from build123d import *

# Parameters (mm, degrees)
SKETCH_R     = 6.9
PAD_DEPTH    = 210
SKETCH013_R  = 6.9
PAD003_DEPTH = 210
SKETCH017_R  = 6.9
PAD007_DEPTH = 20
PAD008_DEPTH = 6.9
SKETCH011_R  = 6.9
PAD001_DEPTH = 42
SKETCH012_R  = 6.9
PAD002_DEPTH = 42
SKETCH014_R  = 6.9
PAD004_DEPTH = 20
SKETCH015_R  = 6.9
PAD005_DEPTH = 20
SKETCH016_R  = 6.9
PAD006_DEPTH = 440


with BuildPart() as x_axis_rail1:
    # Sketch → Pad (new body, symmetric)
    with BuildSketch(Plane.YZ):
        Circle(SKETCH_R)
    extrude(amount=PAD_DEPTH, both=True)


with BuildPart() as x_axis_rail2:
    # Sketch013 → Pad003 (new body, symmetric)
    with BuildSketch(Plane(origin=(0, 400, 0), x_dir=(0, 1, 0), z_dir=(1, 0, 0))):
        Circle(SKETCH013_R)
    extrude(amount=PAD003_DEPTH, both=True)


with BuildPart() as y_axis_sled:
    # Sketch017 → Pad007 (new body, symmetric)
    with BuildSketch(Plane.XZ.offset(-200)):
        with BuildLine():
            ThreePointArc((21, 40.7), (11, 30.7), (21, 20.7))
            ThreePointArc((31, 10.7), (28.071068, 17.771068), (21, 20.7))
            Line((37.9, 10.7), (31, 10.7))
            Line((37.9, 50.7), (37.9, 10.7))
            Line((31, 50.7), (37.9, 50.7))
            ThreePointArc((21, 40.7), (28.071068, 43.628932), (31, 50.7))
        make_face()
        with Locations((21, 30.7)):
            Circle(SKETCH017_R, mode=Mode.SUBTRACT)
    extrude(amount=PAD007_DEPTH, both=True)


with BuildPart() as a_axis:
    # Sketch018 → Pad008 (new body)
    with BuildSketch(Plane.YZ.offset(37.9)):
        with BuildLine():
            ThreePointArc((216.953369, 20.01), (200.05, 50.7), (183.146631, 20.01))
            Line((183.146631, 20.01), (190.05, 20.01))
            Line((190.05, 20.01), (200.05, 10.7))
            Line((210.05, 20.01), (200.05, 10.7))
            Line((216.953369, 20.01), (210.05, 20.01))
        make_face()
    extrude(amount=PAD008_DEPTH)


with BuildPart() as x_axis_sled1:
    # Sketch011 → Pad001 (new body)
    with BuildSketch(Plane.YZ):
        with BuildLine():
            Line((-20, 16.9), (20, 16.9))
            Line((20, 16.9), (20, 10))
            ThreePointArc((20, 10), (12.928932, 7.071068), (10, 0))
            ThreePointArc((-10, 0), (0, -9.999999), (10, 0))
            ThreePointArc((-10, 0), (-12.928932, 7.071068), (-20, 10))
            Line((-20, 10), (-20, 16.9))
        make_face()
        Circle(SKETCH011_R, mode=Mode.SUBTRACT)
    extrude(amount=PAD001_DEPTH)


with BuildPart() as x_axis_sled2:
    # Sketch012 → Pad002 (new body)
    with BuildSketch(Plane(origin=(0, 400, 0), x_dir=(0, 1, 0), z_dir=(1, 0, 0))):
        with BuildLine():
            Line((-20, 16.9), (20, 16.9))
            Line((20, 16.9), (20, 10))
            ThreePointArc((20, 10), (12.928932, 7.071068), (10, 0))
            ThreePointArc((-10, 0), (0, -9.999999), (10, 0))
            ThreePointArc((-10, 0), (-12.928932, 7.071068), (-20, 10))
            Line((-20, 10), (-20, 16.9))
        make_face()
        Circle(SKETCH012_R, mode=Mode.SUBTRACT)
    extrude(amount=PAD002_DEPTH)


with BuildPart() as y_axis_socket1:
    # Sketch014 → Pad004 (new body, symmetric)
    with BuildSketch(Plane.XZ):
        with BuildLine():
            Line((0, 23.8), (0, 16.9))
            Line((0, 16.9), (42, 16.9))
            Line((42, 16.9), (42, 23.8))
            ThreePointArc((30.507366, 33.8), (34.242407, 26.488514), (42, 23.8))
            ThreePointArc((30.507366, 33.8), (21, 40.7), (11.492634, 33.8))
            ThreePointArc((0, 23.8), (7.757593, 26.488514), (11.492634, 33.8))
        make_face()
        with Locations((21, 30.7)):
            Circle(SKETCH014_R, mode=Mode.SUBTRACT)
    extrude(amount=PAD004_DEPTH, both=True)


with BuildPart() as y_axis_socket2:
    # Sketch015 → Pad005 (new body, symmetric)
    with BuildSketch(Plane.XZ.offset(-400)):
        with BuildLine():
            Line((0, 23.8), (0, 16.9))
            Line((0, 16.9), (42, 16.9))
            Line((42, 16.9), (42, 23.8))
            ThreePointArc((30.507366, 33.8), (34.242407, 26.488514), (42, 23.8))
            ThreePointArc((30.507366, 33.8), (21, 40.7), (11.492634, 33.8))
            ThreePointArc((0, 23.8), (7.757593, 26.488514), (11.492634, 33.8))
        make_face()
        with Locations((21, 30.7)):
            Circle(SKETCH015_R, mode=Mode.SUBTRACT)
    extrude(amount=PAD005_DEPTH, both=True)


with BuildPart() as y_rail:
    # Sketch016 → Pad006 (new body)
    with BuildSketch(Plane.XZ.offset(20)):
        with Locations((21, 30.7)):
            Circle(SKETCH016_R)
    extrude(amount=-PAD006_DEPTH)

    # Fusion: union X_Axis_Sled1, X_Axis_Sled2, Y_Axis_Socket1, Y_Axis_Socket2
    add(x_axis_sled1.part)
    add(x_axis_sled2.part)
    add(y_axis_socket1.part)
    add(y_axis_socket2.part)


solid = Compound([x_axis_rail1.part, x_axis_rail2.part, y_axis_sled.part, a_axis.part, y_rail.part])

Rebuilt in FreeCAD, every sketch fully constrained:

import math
import FreeCAD as App
import Part
import Sketcher

doc = App.newDocument("Part")
body = doc.addObject("PartDesign::Body", "Body")

# Sketch on YZ plane
sketch1 = doc.addObject("Sketcher::SketchObject", "Sketch")
body.addObject(sketch1)
sketch1.AttachmentSupport = (doc.YZ_Plane, [""])
sketch1.MapMode = "FlatFace"
sketch1.addGeometry(Part.Circle(App.Vector(0, 0, 0), App.Vector(0, 0, 1), 7), False)
sketch1.addConstraint(Sketcher.Constraint("Coincident", 0, 3, -1, 1))
sketch1.addConstraint(Sketcher.Constraint("Diameter", 0, 13.8))
pad1 = doc.addObject("PartDesign::Pad", "Pad")
body.addObject(pad1)
pad1.Profile = sketch1
pad1.Length = 420
pad1.Midplane = True
body2 = doc.addObject("PartDesign::Body", "Body001")

# Sketch on YZ plane
sketch2 = doc.addObject("Sketcher::SketchObject", "Sketch001")
body2.addObject(sketch2)
sketch2.AttachmentSupport = (doc.getObject("YZ_Plane001"), [""])
sketch2.MapMode = "FlatFace"
sketch2.addGeometry(Part.Circle(App.Vector(400, 0, 0), App.Vector(0, 0, 1), 7), False)
sketch2.addConstraint(Sketcher.Constraint("PointOnObject", 0, 3, -1))
sketch2.addConstraint(Sketcher.Constraint("Diameter", 0, 13.8))
sketch2.addConstraint(Sketcher.Constraint("DistanceX", -1, 1, 0, 3, 400.0))
pad2 = doc.addObject("PartDesign::Pad", "Pad001")
body2.addObject(pad2)
pad2.Profile = sketch2
pad2.Length = 420
pad2.Midplane = True
body3 = doc.addObject("PartDesign::Body", "Body002")

# Sketch on XZ plane
sketch3 = doc.addObject("Sketcher::SketchObject", "Sketch002")
body3.addObject(sketch3)
sketch3.AttachmentSupport = (doc.getObject("XZ_Plane002"), [""])
sketch3.MapMode = "FlatFace"
sketch3.AttachmentOffset = App.Placement(App.Vector(0, 0, -200), App.Rotation())
sketch3.addGeometry(Part.ArcOfCircle(Part.Circle(App.Vector(21, 31, 0), App.Vector(0, 0, 1), 10), math.radians(90), math.radians(270)), False)
sketch3.addGeometry(Part.ArcOfCircle(Part.Circle(App.Vector(21, 11, 0), App.Vector(0, 0, 1), 10), math.radians(0), math.radians(90)), False)
sketch3.addGeometry(Part.LineSegment(App.Vector(31, 11, 0), App.Vector(38, 11, 0)), False)
sketch3.addGeometry(Part.LineSegment(App.Vector(38, 11, 0), App.Vector(38, 51, 0)), False)
sketch3.addGeometry(Part.LineSegment(App.Vector(38, 51, 0), App.Vector(31, 51, 0)), False)
sketch3.addGeometry(Part.ArcOfCircle(Part.Circle(App.Vector(21, 51, 0), App.Vector(0, 0, 1), 10), math.radians(-90), math.radians(0)), False)
sketch3.addGeometry(Part.Circle(App.Vector(21, 31, 0), App.Vector(0, 0, 1), 7), False)
sketch3.addConstraint(Sketcher.Constraint("Tangent", 0, 2, 1, 2))
sketch3.addConstraint(Sketcher.Constraint("Coincident", 1, 1, 2, 1))
sketch3.addConstraint(Sketcher.Constraint("Coincident", 2, 2, 3, 1))
sketch3.addConstraint(Sketcher.Constraint("Coincident", 3, 2, 4, 1))
sketch3.addConstraint(Sketcher.Constraint("Coincident", 4, 2, 5, 2))
sketch3.addConstraint(Sketcher.Constraint("Tangent", 5, 1, 0, 1))
sketch3.addConstraint(Sketcher.Constraint("Horizontal", 2))
sketch3.addConstraint(Sketcher.Constraint("Vertical", 3))
sketch3.addConstraint(Sketcher.Constraint("Horizontal", 4))
sketch3.addConstraint(Sketcher.Constraint("Coincident", 6, 3, 0, 3))
sketch3.addConstraint(Sketcher.Constraint("Equal", 0, 1))
sketch3.addConstraint(Sketcher.Constraint("Equal", 1, 5))
sketch3.addConstraint(Sketcher.Constraint("Horizontal", 5, 3, 3, 2))
sketch3.addConstraint(Sketcher.Constraint("Vertical", 0, 3, 1, 3))
sketch3.addConstraint(Sketcher.Constraint("Vertical", 1, 3, 5, 3))
sketch3.addConstraint(Sketcher.Constraint("Radius", 0, 10.0))
sketch3.addConstraint(Sketcher.Constraint("Diameter", 6, 13.8))
sketch3.addConstraint(Sketcher.Constraint("DistanceY", 3, 1, 3, 2, 40.0))
sketch3.addConstraint(Sketcher.Constraint("DistanceX", 2, 1, 2, 2, 6.9))
sketch3.addConstraint(Sketcher.Constraint("DistanceX", -1, 1, 0, 3, 21.0))
sketch3.addConstraint(Sketcher.Constraint("DistanceY", -1, 1, 0, 3, 30.7))
pad3 = doc.addObject("PartDesign::Pad", "Pad002")
body3.addObject(pad3)
pad3.Profile = sketch3
pad3.Length = 40
pad3.Midplane = True
body4 = doc.addObject("PartDesign::Body", "Body003")

# Sketch on YZ plane
sketch4 = doc.addObject("Sketcher::SketchObject", "Sketch003")
body4.addObject(sketch4)
sketch4.AttachmentSupport = (doc.getObject("YZ_Plane003"), [""])
sketch4.MapMode = "FlatFace"
sketch4.AttachmentOffset = App.Placement(App.Vector(0, 0, 37.9), App.Rotation())
sketch4.addGeometry(Part.ArcOfCircle(Part.Circle(App.Vector(200, 31, 0), App.Vector(0, 0, 1), 20), math.radians(-32), math.radians(212)), False)
sketch4.addGeometry(Part.LineSegment(App.Vector(183, 20, 0), App.Vector(190, 20, 0)), False)
sketch4.addGeometry(Part.LineSegment(App.Vector(190, 20, 0), App.Vector(200, 11, 0)), False)
sketch4.addGeometry(Part.LineSegment(App.Vector(200, 11, 0), App.Vector(210, 20, 0)), False)
sketch4.addGeometry(Part.LineSegment(App.Vector(210, 20, 0), App.Vector(217, 20, 0)), False)
sketch4.addConstraint(Sketcher.Constraint("Coincident", 0, 2, 1, 1))
sketch4.addConstraint(Sketcher.Constraint("Coincident", 1, 2, 2, 1))
sketch4.addConstraint(Sketcher.Constraint("Coincident", 2, 2, 3, 1))
sketch4.addConstraint(Sketcher.Constraint("Coincident", 3, 2, 4, 1))
sketch4.addConstraint(Sketcher.Constraint("Coincident", 4, 2, 0, 1))
sketch4.addConstraint(Sketcher.Constraint("Horizontal", 1))
sketch4.addConstraint(Sketcher.Constraint("Horizontal", 4))
sketch4.addConstraint(Sketcher.Constraint("Horizontal", 1, 2, 3, 2))
sketch4.addConstraint(Sketcher.Constraint("Vertical", 0, 3, 2, 2))
sketch4.addConstraint(Sketcher.Constraint("Equal", 1, 4))
sketch4.addConstraint(Sketcher.Constraint("Radius", 0, 20.0))
sketch4.addConstraint(Sketcher.Constraint("DistanceX", 1, 2, 0, 3, 10.0))
sketch4.addConstraint(Sketcher.Constraint("DistanceY", 2, 2, 0, 3, 20.0))
sketch4.addConstraint(Sketcher.Constraint("DistanceY", -1, 1, 0, 3, 30.7))
sketch4.addConstraint(Sketcher.Constraint("DistanceX", -1, 1, 0, 3, 200.05))
sketch4.addConstraint(Sketcher.Constraint("DistanceY", -1, 1, 0, 2, 20.01))
pad4 = doc.addObject("PartDesign::Pad", "Pad003")
body4.addObject(pad4)
pad4.Profile = sketch4
pad4.Length = 6.9
body5 = doc.addObject("PartDesign::Body", "Body004")

# Sketch on YZ plane
sketch5 = doc.addObject("Sketcher::SketchObject", "Sketch004")
body5.addObject(sketch5)
sketch5.AttachmentSupport = (doc.getObject("YZ_Plane004"), [""])
sketch5.MapMode = "FlatFace"
sketch5.addGeometry(Part.LineSegment(App.Vector(20, 17, 0), App.Vector(-20, 17, 0)), False)
sketch5.addGeometry(Part.LineSegment(App.Vector(-20, 17, 0), App.Vector(-20, 10, 0)), False)
sketch5.addGeometry(Part.ArcOfCircle(Part.Circle(App.Vector(-20, 0, 0), App.Vector(0, 0, 1), 10), math.radians(0), math.radians(90)), False)
sketch5.addGeometry(Part.ArcOfCircle(Part.Circle(App.Vector(0, 0, 0), App.Vector(0, 0, 1), 10), math.radians(-180), math.radians(0)), False)
sketch5.addGeometry(Part.ArcOfCircle(Part.Circle(App.Vector(20, 0, 0), App.Vector(0, 0, 1), 10), math.radians(90), math.radians(180)), False)
sketch5.addGeometry(Part.LineSegment(App.Vector(20, 10, 0), App.Vector(20, 17, 0)), False)
sketch5.addGeometry(Part.Circle(App.Vector(0, 0, 0), App.Vector(0, 0, 1), 7), False)
sketch5.addConstraint(Sketcher.Constraint("Coincident", 0, 2, 1, 1))
sketch5.addConstraint(Sketcher.Constraint("Coincident", 1, 2, 2, 2))
sketch5.addConstraint(Sketcher.Constraint("Tangent", 2, 1, 3, 1))
sketch5.addConstraint(Sketcher.Constraint("Tangent", 3, 2, 4, 2))
sketch5.addConstraint(Sketcher.Constraint("Coincident", 4, 1, 5, 1))
sketch5.addConstraint(Sketcher.Constraint("Coincident", 5, 2, 0, 1))
sketch5.addConstraint(Sketcher.Constraint("Horizontal", 0))
sketch5.addConstraint(Sketcher.Constraint("Vertical", 1))
sketch5.addConstraint(Sketcher.Constraint("Vertical", 5))
sketch5.addConstraint(Sketcher.Constraint("Coincident", 3, 3, -1, 1))
sketch5.addConstraint(Sketcher.Constraint("Coincident", 6, 3, -1, 1))
sketch5.addConstraint(Sketcher.Constraint("Equal", 2, 3))
sketch5.addConstraint(Sketcher.Constraint("Equal", 3, 4))
sketch5.addConstraint(Sketcher.Constraint("Symmetric", 1, 2, 4, 1, -2))
sketch5.addConstraint(Sketcher.Constraint("PointOnObject", 2, 3, -1))
sketch5.addConstraint(Sketcher.Constraint("Vertical", 2, 3, 0, 2))
sketch5.addConstraint(Sketcher.Constraint("Radius", 2, 9.999999))
sketch5.addConstraint(Sketcher.Constraint("Diameter", 6, 13.8))
sketch5.addConstraint(Sketcher.Constraint("DistanceY", 1, 2, 1, 1, 6.9))
pad5 = doc.addObject("PartDesign::Pad", "Pad004")
body5.addObject(pad5)
pad5.Profile = sketch5
pad5.Length = 42
body6 = doc.addObject("PartDesign::Body", "Body005")

# Sketch on YZ plane
sketch6 = doc.addObject("Sketcher::SketchObject", "Sketch005")
body6.addObject(sketch6)
sketch6.AttachmentSupport = (doc.getObject("YZ_Plane005"), [""])
sketch6.MapMode = "FlatFace"
sketch6.addGeometry(Part.LineSegment(App.Vector(420, 17, 0), App.Vector(380, 17, 0)), False)
sketch6.addGeometry(Part.LineSegment(App.Vector(380, 17, 0), App.Vector(380, 10, 0)), False)
sketch6.addGeometry(Part.ArcOfCircle(Part.Circle(App.Vector(380, 0, 0), App.Vector(0, 0, 1), 10), math.radians(0), math.radians(90)), False)
sketch6.addGeometry(Part.ArcOfCircle(Part.Circle(App.Vector(400, 0, 0), App.Vector(0, 0, 1), 10), math.radians(-180), math.radians(0)), False)
sketch6.addGeometry(Part.ArcOfCircle(Part.Circle(App.Vector(420, 0, 0), App.Vector(0, 0, 1), 10), math.radians(90), math.radians(180)), False)
sketch6.addGeometry(Part.LineSegment(App.Vector(420, 10, 0), App.Vector(420, 17, 0)), False)
sketch6.addGeometry(Part.Circle(App.Vector(400, 0, 0), App.Vector(0, 0, 1), 7), False)
sketch6.addConstraint(Sketcher.Constraint("Coincident", 0, 2, 1, 1))
sketch6.addConstraint(Sketcher.Constraint("Coincident", 1, 2, 2, 2))
sketch6.addConstraint(Sketcher.Constraint("Tangent", 2, 1, 3, 1))
sketch6.addConstraint(Sketcher.Constraint("Tangent", 3, 2, 4, 2))
sketch6.addConstraint(Sketcher.Constraint("Coincident", 4, 1, 5, 1))
sketch6.addConstraint(Sketcher.Constraint("Coincident", 5, 2, 0, 1))
sketch6.addConstraint(Sketcher.Constraint("Horizontal", 0))
sketch6.addConstraint(Sketcher.Constraint("Vertical", 1))
sketch6.addConstraint(Sketcher.Constraint("Vertical", 5))
sketch6.addConstraint(Sketcher.Constraint("Coincident", 6, 3, 3, 3))
sketch6.addConstraint(Sketcher.Constraint("Equal", 2, 3))
sketch6.addConstraint(Sketcher.Constraint("Equal", 3, 4))
sketch6.addConstraint(Sketcher.Constraint("PointOnObject", 2, 3, -1))
sketch6.addConstraint(Sketcher.Constraint("PointOnObject", 3, 3, -1))
sketch6.addConstraint(Sketcher.Constraint("PointOnObject", 4, 3, -1))
sketch6.addConstraint(Sketcher.Constraint("Vertical", 2, 3, 0, 2))
sketch6.addConstraint(Sketcher.Constraint("Radius", 2, 9.999999))
sketch6.addConstraint(Sketcher.Constraint("Diameter", 6, 13.8))
sketch6.addConstraint(Sketcher.Constraint("DistanceX", 0, 2, 0, 1, 40.0))
sketch6.addConstraint(Sketcher.Constraint("DistanceY", 1, 2, 1, 1, 6.9))
sketch6.addConstraint(Sketcher.Constraint("DistanceX", -1, 1, 2, 3, 380.000001))
pad6 = doc.addObject("PartDesign::Pad", "Pad005")
body6.addObject(pad6)
pad6.Profile = sketch6
pad6.Length = 42
body7 = doc.addObject("PartDesign::Body", "Body006")

# Sketch on XZ plane
sketch7 = doc.addObject("Sketcher::SketchObject", "Sketch006")
body7.addObject(sketch7)
sketch7.AttachmentSupport = (doc.getObject("XZ_Plane006"), [""])
sketch7.MapMode = "FlatFace"
sketch7.addGeometry(Part.LineSegment(App.Vector(0, 24, 0), App.Vector(0, 17, 0)), False)
sketch7.addGeometry(Part.LineSegment(App.Vector(0, 17, 0), App.Vector(42, 17, 0)), False)
sketch7.addGeometry(Part.LineSegment(App.Vector(42, 17, 0), App.Vector(42, 24, 0)), False)
sketch7.addGeometry(Part.ArcOfCircle(Part.Circle(App.Vector(41, 35, 0), App.Vector(0, 0, 1), 11), math.radians(-175), math.radians(-87)), False)
sketch7.addGeometry(Part.ArcOfCircle(Part.Circle(App.Vector(21, 31, 0), App.Vector(0, 0, 1), 10), math.radians(18), math.radians(162)), False)
sketch7.addGeometry(Part.ArcOfCircle(Part.Circle(App.Vector(1, 35, 0), App.Vector(0, 0, 1), 11), math.radians(-93), math.radians(-5)), False)
sketch7.addGeometry(Part.Circle(App.Vector(21, 31, 0), App.Vector(0, 0, 1), 7), False)
sketch7.addConstraint(Sketcher.Constraint("Coincident", 0, 2, 1, 1))
sketch7.addConstraint(Sketcher.Constraint("Coincident", 1, 2, 2, 1))
sketch7.addConstraint(Sketcher.Constraint("Coincident", 2, 2, 3, 2))
sketch7.addConstraint(Sketcher.Constraint("Coincident", 3, 1, 4, 1))
sketch7.addConstraint(Sketcher.Constraint("Coincident", 4, 2, 5, 2))
sketch7.addConstraint(Sketcher.Constraint("Coincident", 5, 1, 0, 1))
sketch7.addConstraint(Sketcher.Constraint("Vertical", 0))
sketch7.addConstraint(Sketcher.Constraint("Horizontal", 1))
sketch7.addConstraint(Sketcher.Constraint("Vertical", 2))
sketch7.addConstraint(Sketcher.Constraint("Coincident", 6, 3, 4, 3))
sketch7.addConstraint(Sketcher.Constraint("Equal", 3, 5))
sketch7.addConstraint(Sketcher.Constraint("PointOnObject", 0, 2, -2))
sketch7.addConstraint(Sketcher.Constraint("Horizontal", 3, 3, 5, 3))
sketch7.addConstraint(Sketcher.Constraint("Horizontal", 3, 1, 4, 2))
sketch7.addConstraint(Sketcher.Constraint("Horizontal", 2, 2, 5, 1))
sketch7.addConstraint(Sketcher.Constraint("Radius", 3, 10.999998))
sketch7.addConstraint(Sketcher.Constraint("Radius", 4, 10.000001))
sketch7.addConstraint(Sketcher.Constraint("Diameter", 6, 13.8))
sketch7.addConstraint(Sketcher.Constraint("DistanceX", 1, 1, 1, 2, 42.0))
sketch7.addConstraint(Sketcher.Constraint("DistanceY", 0, 2, 0, 1, 6.9))
sketch7.addConstraint(Sketcher.Constraint("DistanceY", 2, 2, 3, 1, 10.0))
sketch7.addConstraint(Sketcher.Constraint("DistanceY", -1, 1, 4, 3, 30.699999))
sketch7.addConstraint(Sketcher.Constraint("DistanceY", -1, 1, 0, 2, 16.9))
pad7 = doc.addObject("PartDesign::Pad", "Pad006")
body7.addObject(pad7)
pad7.Profile = sketch7
pad7.Length = 40
pad7.Midplane = True
body8 = doc.addObject("PartDesign::Body", "Body007")

# Sketch on XZ plane
sketch8 = doc.addObject("Sketcher::SketchObject", "Sketch007")
body8.addObject(sketch8)
sketch8.AttachmentSupport = (doc.getObject("XZ_Plane007"), [""])
sketch8.MapMode = "FlatFace"
sketch8.AttachmentOffset = App.Placement(App.Vector(0, 0, -400), App.Rotation())
sketch8.addGeometry(Part.LineSegment(App.Vector(0, 24, 0), App.Vector(0, 17, 0)), False)
sketch8.addGeometry(Part.LineSegment(App.Vector(0, 17, 0), App.Vector(42, 17, 0)), False)
sketch8.addGeometry(Part.LineSegment(App.Vector(42, 17, 0), App.Vector(42, 24, 0)), False)
sketch8.addGeometry(Part.ArcOfCircle(Part.Circle(App.Vector(41, 35, 0), App.Vector(0, 0, 1), 11), math.radians(-175), math.radians(-87)), False)
sketch8.addGeometry(Part.ArcOfCircle(Part.Circle(App.Vector(21, 31, 0), App.Vector(0, 0, 1), 10), math.radians(18), math.radians(162)), False)
sketch8.addGeometry(Part.ArcOfCircle(Part.Circle(App.Vector(1, 35, 0), App.Vector(0, 0, 1), 11), math.radians(-93), math.radians(-5)), False)
sketch8.addGeometry(Part.Circle(App.Vector(21, 31, 0), App.Vector(0, 0, 1), 7), False)
sketch8.addConstraint(Sketcher.Constraint("Coincident", 0, 2, 1, 1))
sketch8.addConstraint(Sketcher.Constraint("Coincident", 1, 2, 2, 1))
sketch8.addConstraint(Sketcher.Constraint("Coincident", 2, 2, 3, 2))
sketch8.addConstraint(Sketcher.Constraint("Coincident", 3, 1, 4, 1))
sketch8.addConstraint(Sketcher.Constraint("Coincident", 4, 2, 5, 2))
sketch8.addConstraint(Sketcher.Constraint("Coincident", 5, 1, 0, 1))
sketch8.addConstraint(Sketcher.Constraint("Vertical", 0))
sketch8.addConstraint(Sketcher.Constraint("Horizontal", 1))
sketch8.addConstraint(Sketcher.Constraint("Vertical", 2))
sketch8.addConstraint(Sketcher.Constraint("Coincident", 6, 3, 4, 3))
sketch8.addConstraint(Sketcher.Constraint("Equal", 3, 5))
sketch8.addConstraint(Sketcher.Constraint("PointOnObject", 0, 2, -2))
sketch8.addConstraint(Sketcher.Constraint("Horizontal", 3, 3, 5, 3))
sketch8.addConstraint(Sketcher.Constraint("Horizontal", 3, 1, 4, 2))
sketch8.addConstraint(Sketcher.Constraint("Horizontal", 2, 2, 5, 1))
sketch8.addConstraint(Sketcher.Constraint("Radius", 3, 10.999998))
sketch8.addConstraint(Sketcher.Constraint("Radius", 4, 10.000001))
sketch8.addConstraint(Sketcher.Constraint("Diameter", 6, 13.8))
sketch8.addConstraint(Sketcher.Constraint("DistanceX", 1, 1, 1, 2, 42.0))
sketch8.addConstraint(Sketcher.Constraint("DistanceY", 0, 2, 0, 1, 6.9))
sketch8.addConstraint(Sketcher.Constraint("DistanceY", 2, 2, 3, 1, 10.0))
sketch8.addConstraint(Sketcher.Constraint("DistanceY", -1, 1, 4, 3, 30.699999))
sketch8.addConstraint(Sketcher.Constraint("DistanceY", -1, 1, 0, 2, 16.9))
pad8 = doc.addObject("PartDesign::Pad", "Pad007")
body8.addObject(pad8)
pad8.Profile = sketch8
pad8.Length = 40
pad8.Midplane = True
body9 = doc.addObject("PartDesign::Body", "Body008")
body9.AllowCompound = True

# Sketch on XZ plane
sketch9 = doc.addObject("Sketcher::SketchObject", "Sketch008")
body9.addObject(sketch9)
sketch9.AttachmentSupport = (doc.getObject("XZ_Plane008"), [""])
sketch9.MapMode = "FlatFace"
sketch9.AttachmentOffset = App.Placement(App.Vector(0, 0, 20), App.Rotation())
sketch9.addGeometry(Part.Circle(App.Vector(21, 31, 0), App.Vector(0, 0, 1), 7), False)
sketch9.addConstraint(Sketcher.Constraint("Diameter", 0, 13.8))
sketch9.addConstraint(Sketcher.Constraint("DistanceX", -1, 1, 0, 3, 21.0))
sketch9.addConstraint(Sketcher.Constraint("DistanceY", -1, 1, 0, 3, 30.7))
pad9 = doc.addObject("PartDesign::Pad", "Pad008")
body9.addObject(pad9)
pad9.Profile = sketch9
pad9.Length = 440
pad9.Reversed = True
doc.recompute()

boolean = doc.addObject("PartDesign::Boolean", "Boolean")
body9.addObject(boolean)
boolean.Type = "Fuse"
boolean.addObjects([body5])
doc.recompute()

boolean2 = doc.addObject("PartDesign::Boolean", "Boolean001")
body9.addObject(boolean2)
boolean2.Type = "Fuse"
boolean2.addObjects([body6])
doc.recompute()

boolean3 = doc.addObject("PartDesign::Boolean", "Boolean002")
body9.addObject(boolean3)
boolean3.Type = "Fuse"
boolean3.addObjects([body7])
doc.recompute()

boolean4 = doc.addObject("PartDesign::Boolean", "Boolean003")
body9.addObject(boolean4)
boolean4.Type = "Fuse"
boolean4.addObjects([body8])

doc.recompute()
